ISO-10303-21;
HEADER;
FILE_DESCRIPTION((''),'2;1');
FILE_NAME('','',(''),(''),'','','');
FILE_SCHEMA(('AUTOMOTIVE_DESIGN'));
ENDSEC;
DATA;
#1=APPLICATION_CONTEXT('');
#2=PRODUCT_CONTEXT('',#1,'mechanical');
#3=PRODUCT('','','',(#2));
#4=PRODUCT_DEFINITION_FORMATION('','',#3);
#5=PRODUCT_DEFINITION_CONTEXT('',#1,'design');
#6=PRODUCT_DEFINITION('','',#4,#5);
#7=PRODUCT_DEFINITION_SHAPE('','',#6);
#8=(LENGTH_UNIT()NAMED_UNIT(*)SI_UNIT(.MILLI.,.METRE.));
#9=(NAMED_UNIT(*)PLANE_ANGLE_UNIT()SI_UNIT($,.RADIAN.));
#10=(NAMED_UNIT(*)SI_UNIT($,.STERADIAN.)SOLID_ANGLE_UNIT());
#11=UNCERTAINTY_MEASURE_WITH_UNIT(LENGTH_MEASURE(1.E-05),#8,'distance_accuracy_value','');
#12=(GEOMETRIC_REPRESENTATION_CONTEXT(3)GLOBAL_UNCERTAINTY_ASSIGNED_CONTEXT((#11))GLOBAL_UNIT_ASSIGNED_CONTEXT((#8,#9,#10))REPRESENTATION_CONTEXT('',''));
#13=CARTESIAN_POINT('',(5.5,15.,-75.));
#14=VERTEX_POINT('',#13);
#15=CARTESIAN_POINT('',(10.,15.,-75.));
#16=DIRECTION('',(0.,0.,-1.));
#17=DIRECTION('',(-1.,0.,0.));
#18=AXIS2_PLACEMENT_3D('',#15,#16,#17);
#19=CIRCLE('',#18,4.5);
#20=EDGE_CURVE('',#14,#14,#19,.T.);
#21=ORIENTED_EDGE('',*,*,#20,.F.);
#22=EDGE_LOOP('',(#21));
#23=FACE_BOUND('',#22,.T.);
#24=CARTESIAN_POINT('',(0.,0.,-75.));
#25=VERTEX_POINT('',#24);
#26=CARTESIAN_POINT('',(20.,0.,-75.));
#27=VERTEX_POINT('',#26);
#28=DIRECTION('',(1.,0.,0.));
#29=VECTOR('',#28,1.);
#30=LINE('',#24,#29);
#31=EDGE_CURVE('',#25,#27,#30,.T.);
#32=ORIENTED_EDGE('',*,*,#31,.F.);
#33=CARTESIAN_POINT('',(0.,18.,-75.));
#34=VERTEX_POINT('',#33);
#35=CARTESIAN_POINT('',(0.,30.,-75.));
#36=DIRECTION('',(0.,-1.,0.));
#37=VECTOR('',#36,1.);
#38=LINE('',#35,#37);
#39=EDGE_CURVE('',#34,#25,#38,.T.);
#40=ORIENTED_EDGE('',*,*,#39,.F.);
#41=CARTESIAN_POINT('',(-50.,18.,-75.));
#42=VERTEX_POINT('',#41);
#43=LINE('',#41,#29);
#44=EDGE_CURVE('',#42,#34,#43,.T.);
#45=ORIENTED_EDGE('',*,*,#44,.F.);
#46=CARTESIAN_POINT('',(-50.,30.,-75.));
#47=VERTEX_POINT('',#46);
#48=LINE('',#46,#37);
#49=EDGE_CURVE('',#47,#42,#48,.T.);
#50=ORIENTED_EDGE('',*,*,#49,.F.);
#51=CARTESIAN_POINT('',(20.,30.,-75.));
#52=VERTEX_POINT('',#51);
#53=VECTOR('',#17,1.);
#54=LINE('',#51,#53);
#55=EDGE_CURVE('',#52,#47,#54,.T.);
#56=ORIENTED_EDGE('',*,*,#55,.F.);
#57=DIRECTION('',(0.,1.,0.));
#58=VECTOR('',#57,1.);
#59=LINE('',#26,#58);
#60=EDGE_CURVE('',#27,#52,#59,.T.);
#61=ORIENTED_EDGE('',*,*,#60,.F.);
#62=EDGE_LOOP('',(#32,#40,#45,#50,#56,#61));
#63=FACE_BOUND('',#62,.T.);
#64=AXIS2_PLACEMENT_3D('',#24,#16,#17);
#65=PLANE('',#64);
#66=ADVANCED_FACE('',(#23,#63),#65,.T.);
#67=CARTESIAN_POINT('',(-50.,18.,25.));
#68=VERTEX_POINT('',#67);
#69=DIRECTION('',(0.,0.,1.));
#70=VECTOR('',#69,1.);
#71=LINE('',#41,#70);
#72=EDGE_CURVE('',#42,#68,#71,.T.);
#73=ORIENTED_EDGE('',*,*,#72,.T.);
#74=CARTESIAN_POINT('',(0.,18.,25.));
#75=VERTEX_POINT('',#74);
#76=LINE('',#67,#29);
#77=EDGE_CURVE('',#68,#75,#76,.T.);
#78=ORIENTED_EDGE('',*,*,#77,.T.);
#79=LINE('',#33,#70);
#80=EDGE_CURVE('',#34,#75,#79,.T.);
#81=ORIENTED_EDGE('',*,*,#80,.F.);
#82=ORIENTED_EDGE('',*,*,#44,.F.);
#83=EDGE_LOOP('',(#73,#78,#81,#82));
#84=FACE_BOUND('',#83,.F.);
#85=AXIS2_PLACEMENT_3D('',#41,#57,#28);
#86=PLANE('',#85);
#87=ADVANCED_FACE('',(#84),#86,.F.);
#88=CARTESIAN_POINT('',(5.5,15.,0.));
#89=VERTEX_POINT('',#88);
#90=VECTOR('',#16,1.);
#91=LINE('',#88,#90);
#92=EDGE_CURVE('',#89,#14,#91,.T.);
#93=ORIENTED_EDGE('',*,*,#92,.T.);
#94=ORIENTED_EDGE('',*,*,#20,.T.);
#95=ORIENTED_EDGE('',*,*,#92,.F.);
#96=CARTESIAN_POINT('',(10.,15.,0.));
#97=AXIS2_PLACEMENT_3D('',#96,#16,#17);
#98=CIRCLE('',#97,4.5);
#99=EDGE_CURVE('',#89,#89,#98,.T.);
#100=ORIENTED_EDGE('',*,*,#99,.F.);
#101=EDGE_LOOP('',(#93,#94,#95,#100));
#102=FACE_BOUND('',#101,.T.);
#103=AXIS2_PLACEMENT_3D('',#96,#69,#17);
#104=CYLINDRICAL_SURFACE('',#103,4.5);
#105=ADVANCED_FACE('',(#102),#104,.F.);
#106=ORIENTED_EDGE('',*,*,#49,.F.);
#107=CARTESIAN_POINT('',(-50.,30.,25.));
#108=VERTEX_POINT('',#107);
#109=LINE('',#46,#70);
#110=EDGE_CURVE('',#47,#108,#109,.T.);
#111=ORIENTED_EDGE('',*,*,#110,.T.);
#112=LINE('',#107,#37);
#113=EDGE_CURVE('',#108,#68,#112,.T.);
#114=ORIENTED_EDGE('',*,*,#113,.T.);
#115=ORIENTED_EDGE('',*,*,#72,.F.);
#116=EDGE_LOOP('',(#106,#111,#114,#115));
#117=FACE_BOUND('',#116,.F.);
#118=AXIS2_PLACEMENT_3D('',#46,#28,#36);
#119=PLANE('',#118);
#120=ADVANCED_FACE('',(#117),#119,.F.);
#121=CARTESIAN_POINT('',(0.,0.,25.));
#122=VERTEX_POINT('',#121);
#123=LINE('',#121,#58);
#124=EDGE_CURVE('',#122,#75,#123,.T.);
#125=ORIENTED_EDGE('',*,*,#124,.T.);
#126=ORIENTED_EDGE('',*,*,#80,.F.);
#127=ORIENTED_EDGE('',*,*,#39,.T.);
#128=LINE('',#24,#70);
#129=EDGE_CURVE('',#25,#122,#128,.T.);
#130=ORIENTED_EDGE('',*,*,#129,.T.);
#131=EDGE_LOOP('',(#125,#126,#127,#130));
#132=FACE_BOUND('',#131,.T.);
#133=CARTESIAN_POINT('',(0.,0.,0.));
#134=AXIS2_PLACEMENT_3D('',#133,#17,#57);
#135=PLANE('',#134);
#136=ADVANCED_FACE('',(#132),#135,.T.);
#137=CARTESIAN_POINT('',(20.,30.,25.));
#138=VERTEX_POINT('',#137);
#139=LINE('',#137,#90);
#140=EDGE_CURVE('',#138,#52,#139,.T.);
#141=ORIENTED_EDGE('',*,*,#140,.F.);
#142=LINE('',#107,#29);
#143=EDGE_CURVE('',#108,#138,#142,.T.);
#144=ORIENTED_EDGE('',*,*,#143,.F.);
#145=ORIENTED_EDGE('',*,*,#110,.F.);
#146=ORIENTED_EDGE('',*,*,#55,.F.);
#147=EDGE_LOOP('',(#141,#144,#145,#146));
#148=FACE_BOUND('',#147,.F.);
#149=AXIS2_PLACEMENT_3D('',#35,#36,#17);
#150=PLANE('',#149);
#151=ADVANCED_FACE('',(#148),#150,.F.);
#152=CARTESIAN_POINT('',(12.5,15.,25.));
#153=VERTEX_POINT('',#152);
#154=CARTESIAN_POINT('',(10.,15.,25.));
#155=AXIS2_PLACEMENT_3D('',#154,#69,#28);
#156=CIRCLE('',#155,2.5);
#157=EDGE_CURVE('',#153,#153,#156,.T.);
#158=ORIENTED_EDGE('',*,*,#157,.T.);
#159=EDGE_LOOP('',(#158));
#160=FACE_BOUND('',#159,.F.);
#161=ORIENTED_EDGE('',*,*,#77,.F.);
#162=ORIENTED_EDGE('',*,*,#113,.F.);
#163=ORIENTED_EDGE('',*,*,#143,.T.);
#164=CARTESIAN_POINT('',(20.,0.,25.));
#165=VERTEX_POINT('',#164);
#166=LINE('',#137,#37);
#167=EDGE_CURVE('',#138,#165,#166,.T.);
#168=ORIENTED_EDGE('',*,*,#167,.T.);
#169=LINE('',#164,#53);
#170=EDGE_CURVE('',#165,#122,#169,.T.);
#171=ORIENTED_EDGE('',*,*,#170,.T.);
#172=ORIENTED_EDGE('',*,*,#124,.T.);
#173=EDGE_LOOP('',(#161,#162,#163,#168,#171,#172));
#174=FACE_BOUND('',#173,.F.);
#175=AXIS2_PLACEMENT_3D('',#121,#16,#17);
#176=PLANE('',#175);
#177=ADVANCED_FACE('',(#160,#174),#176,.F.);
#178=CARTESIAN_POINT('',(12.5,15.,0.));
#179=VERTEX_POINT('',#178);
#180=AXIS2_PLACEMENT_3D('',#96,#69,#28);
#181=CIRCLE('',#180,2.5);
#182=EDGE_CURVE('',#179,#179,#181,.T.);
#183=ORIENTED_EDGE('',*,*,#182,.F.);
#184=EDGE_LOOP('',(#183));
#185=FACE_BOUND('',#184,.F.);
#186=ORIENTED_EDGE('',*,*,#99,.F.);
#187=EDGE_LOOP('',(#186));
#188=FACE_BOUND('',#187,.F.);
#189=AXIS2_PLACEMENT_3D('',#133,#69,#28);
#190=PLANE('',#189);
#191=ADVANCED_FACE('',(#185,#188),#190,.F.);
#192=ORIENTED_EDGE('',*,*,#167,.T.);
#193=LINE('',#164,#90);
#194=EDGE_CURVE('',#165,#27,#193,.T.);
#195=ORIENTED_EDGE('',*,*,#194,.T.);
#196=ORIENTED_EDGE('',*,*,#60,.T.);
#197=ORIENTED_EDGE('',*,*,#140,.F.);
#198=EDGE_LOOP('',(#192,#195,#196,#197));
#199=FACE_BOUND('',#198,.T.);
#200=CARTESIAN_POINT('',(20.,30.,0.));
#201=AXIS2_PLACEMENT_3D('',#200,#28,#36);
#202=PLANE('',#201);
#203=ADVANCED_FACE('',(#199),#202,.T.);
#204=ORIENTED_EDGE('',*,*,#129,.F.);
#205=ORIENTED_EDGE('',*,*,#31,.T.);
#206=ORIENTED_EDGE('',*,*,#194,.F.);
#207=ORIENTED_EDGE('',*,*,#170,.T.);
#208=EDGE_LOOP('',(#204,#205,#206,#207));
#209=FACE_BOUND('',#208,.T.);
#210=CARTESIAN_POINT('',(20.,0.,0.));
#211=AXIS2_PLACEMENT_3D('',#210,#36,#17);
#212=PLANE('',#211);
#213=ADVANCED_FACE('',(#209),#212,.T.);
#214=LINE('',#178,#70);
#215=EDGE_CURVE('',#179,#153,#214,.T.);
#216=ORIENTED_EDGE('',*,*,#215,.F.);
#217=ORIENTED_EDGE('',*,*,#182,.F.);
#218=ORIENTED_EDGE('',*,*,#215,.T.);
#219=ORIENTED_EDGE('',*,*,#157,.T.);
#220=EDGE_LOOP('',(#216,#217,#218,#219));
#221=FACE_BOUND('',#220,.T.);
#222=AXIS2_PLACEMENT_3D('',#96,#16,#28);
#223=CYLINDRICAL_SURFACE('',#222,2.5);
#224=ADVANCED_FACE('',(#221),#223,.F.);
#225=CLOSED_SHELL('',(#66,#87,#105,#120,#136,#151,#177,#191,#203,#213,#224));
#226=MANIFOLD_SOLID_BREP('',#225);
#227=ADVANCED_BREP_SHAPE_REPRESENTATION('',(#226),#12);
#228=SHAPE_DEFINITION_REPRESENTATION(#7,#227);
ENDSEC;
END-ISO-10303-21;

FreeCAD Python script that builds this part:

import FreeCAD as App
import Part
import Sketcher

doc = App.newDocument("Part")
body = doc.addObject("PartDesign::Body", "Body")

# Sketch on XY plane
sketch1 = body.newObject("Sketcher::SketchObject", "Sketch")
sketch1.AttachmentSupport = (doc.getObject("XY_Plane"), [""])
sketch1.MapMode = "FlatFace"
sketch1.addGeometry([
    Part.LineSegment(App.Vector(20, 30, 0), App.Vector(0, 30, 0)),  # 0
    Part.LineSegment(App.Vector(0, 30, 0), App.Vector(0, 0, 0)),  # 1
    Part.LineSegment(App.Vector(0, 0, 0), App.Vector(20, 0, 0)),  # 2
    Part.LineSegment(App.Vector(20, 0, 0), App.Vector(20, 30, 0)),  # 3
    Part.Circle(App.Vector(10, 15, 0), App.Vector(0, 0, 1), 2.5),  # 4
], False)
sketch1.addConstraint([
    Sketcher.Constraint("Coincident", 0, 2, 1, 1),
    Sketcher.Constraint("Coincident", 1, 2, 2, 1),
    Sketcher.Constraint("Coincident", 2, 2, 3, 1),
    Sketcher.Constraint("Coincident", 3, 2, 0, 1),
    Sketcher.Constraint("Horizontal", 0),
    Sketcher.Constraint("Vertical", 1),
    Sketcher.Constraint("Horizontal", 2),
    Sketcher.Constraint("Vertical", 3),
    Sketcher.Constraint("Coincident", 1, 2, -1, 1),
    Sketcher.Constraint("Diameter", 4, 5.0),
    Sketcher.Constraint("DistanceX", 0, 2, 0, 1, 20.0),
    Sketcher.Constraint("DistanceY", 1, 2, 1, 1, 30.0),
    Sketcher.Constraint("DistanceX", -1, 1, 4, 3, 10.0),
    Sketcher.Constraint("DistanceY", -1, 1, 4, 3, 15.0),
])
pad1 = body.newObject("PartDesign::Pad", "Pad")
pad1.Profile = sketch1
pad1.Length = 25

# Sketch on XY plane
sketch2 = body.newObject("Sketcher::SketchObject", "Sketch001")
sketch2.AttachmentSupport = (doc.getObject("XY_Plane"), [""])
sketch2.MapMode = "FlatFace"
sketch2.addGeometry([
    Part.LineSegment(App.Vector(20, 0, 0), App.Vector(0, 0, 0)),  # 0
    Part.LineSegment(App.Vector(0, 0, 0), App.Vector(0, 30, 0)),  # 1
    Part.LineSegment(App.Vector(0, 30, 0), App.Vector(20, 30, 0)),  # 2
    Part.LineSegment(App.Vector(20, 30, 0), App.Vector(20, 0, 0)),  # 3
    Part.Circle(App.Vector(10, 15, 0), App.Vector(0, 0, 1), 4.5),  # 4
], False)
sketch2.addConstraint([
    Sketcher.Constraint("Coincident", 0, 2, 1, 1),
    Sketcher.Constraint("Coincident", 1, 2, 2, 1),
    Sketcher.Constraint("Coincident", 2, 2, 3, 1),
    Sketcher.Constraint("Coincident", 3, 2, 0, 1),
    Sketcher.Constraint("Horizontal", 0),
    Sketcher.Constraint("Vertical", 1),
    Sketcher.Constraint("Horizontal", 2),
    Sketcher.Constraint("Vertical", 3),
    Sketcher.Constraint("Coincident", 0, 2, -1, 1),
    Sketcher.Constraint("Diameter", 4, 9.0),
    Sketcher.Constraint("DistanceX", 0, 2, 0, 1, 20.0),
    Sketcher.Constraint("DistanceY", 1, 1, 1, 2, 30.0),
    Sketcher.Constraint("DistanceX", -1, 1, 4, 3, 10.0),
    Sketcher.Constraint("DistanceY", -1, 1, 4, 3, 15.0),
])
pad2 = body.newObject("PartDesign::Pad", "Pad001")
pad2.Profile = sketch2
pad2.Length = 75
pad2.Reversed = True

# Sketch on XY plane
sketch3 = body.newObject("Sketcher::SketchObject", "Sketch002")
sketch3.AttachmentSupport = (doc.getObject("XY_Plane"), [""])
sketch3.MapMode = "FlatFace"
sketch3.AttachmentOffset = App.Placement(App.Vector(0, 0, -75), App.Rotation())
sketch3.addGeometry([
    Part.LineSegment(App.Vector(-50, 30, 0), App.Vector(0, 30, 0)),
    Part.LineSegment(App.Vector(0, 30, 0), App.Vector(0, 18, 0)),
    Part.LineSegment(App.Vector(0, 18, 0), App.Vector(-50, 18, 0)),
    Part.LineSegment(App.Vector(-50, 18, 0), App.Vector(-50, 30, 0)),
], False)
sketch3.addConstraint([
    Sketcher.Constraint("Coincident", 0, 2, 1, 1),
    Sketcher.Constraint("Coincident", 1, 2, 2, 1),
    Sketcher.Constraint("Coincident", 2, 2, 3, 1),
    Sketcher.Constraint("Coincident", 3, 2, 0, 1),
    Sketcher.Constraint("Horizontal", 0),
    Sketcher.Constraint("Vertical", 1),
    Sketcher.Constraint("Horizontal", 2),
    Sketcher.Constraint("Vertical", 3),
    Sketcher.Constraint("PointOnObject", 0, 2, -2),
    Sketcher.Constraint("DistanceX", 0, 1, 0, 2, 50.0),
    Sketcher.Constraint("DistanceY", 1, 2, 1, 1, 12.0),
    Sketcher.Constraint("DistanceY", -1, 1, 0, 2, 30.0),
])
pad3 = body.newObject("PartDesign::Pad", "Pad002")
pad3.Profile = sketch3
pad3.Length = 100

doc.recompute()
